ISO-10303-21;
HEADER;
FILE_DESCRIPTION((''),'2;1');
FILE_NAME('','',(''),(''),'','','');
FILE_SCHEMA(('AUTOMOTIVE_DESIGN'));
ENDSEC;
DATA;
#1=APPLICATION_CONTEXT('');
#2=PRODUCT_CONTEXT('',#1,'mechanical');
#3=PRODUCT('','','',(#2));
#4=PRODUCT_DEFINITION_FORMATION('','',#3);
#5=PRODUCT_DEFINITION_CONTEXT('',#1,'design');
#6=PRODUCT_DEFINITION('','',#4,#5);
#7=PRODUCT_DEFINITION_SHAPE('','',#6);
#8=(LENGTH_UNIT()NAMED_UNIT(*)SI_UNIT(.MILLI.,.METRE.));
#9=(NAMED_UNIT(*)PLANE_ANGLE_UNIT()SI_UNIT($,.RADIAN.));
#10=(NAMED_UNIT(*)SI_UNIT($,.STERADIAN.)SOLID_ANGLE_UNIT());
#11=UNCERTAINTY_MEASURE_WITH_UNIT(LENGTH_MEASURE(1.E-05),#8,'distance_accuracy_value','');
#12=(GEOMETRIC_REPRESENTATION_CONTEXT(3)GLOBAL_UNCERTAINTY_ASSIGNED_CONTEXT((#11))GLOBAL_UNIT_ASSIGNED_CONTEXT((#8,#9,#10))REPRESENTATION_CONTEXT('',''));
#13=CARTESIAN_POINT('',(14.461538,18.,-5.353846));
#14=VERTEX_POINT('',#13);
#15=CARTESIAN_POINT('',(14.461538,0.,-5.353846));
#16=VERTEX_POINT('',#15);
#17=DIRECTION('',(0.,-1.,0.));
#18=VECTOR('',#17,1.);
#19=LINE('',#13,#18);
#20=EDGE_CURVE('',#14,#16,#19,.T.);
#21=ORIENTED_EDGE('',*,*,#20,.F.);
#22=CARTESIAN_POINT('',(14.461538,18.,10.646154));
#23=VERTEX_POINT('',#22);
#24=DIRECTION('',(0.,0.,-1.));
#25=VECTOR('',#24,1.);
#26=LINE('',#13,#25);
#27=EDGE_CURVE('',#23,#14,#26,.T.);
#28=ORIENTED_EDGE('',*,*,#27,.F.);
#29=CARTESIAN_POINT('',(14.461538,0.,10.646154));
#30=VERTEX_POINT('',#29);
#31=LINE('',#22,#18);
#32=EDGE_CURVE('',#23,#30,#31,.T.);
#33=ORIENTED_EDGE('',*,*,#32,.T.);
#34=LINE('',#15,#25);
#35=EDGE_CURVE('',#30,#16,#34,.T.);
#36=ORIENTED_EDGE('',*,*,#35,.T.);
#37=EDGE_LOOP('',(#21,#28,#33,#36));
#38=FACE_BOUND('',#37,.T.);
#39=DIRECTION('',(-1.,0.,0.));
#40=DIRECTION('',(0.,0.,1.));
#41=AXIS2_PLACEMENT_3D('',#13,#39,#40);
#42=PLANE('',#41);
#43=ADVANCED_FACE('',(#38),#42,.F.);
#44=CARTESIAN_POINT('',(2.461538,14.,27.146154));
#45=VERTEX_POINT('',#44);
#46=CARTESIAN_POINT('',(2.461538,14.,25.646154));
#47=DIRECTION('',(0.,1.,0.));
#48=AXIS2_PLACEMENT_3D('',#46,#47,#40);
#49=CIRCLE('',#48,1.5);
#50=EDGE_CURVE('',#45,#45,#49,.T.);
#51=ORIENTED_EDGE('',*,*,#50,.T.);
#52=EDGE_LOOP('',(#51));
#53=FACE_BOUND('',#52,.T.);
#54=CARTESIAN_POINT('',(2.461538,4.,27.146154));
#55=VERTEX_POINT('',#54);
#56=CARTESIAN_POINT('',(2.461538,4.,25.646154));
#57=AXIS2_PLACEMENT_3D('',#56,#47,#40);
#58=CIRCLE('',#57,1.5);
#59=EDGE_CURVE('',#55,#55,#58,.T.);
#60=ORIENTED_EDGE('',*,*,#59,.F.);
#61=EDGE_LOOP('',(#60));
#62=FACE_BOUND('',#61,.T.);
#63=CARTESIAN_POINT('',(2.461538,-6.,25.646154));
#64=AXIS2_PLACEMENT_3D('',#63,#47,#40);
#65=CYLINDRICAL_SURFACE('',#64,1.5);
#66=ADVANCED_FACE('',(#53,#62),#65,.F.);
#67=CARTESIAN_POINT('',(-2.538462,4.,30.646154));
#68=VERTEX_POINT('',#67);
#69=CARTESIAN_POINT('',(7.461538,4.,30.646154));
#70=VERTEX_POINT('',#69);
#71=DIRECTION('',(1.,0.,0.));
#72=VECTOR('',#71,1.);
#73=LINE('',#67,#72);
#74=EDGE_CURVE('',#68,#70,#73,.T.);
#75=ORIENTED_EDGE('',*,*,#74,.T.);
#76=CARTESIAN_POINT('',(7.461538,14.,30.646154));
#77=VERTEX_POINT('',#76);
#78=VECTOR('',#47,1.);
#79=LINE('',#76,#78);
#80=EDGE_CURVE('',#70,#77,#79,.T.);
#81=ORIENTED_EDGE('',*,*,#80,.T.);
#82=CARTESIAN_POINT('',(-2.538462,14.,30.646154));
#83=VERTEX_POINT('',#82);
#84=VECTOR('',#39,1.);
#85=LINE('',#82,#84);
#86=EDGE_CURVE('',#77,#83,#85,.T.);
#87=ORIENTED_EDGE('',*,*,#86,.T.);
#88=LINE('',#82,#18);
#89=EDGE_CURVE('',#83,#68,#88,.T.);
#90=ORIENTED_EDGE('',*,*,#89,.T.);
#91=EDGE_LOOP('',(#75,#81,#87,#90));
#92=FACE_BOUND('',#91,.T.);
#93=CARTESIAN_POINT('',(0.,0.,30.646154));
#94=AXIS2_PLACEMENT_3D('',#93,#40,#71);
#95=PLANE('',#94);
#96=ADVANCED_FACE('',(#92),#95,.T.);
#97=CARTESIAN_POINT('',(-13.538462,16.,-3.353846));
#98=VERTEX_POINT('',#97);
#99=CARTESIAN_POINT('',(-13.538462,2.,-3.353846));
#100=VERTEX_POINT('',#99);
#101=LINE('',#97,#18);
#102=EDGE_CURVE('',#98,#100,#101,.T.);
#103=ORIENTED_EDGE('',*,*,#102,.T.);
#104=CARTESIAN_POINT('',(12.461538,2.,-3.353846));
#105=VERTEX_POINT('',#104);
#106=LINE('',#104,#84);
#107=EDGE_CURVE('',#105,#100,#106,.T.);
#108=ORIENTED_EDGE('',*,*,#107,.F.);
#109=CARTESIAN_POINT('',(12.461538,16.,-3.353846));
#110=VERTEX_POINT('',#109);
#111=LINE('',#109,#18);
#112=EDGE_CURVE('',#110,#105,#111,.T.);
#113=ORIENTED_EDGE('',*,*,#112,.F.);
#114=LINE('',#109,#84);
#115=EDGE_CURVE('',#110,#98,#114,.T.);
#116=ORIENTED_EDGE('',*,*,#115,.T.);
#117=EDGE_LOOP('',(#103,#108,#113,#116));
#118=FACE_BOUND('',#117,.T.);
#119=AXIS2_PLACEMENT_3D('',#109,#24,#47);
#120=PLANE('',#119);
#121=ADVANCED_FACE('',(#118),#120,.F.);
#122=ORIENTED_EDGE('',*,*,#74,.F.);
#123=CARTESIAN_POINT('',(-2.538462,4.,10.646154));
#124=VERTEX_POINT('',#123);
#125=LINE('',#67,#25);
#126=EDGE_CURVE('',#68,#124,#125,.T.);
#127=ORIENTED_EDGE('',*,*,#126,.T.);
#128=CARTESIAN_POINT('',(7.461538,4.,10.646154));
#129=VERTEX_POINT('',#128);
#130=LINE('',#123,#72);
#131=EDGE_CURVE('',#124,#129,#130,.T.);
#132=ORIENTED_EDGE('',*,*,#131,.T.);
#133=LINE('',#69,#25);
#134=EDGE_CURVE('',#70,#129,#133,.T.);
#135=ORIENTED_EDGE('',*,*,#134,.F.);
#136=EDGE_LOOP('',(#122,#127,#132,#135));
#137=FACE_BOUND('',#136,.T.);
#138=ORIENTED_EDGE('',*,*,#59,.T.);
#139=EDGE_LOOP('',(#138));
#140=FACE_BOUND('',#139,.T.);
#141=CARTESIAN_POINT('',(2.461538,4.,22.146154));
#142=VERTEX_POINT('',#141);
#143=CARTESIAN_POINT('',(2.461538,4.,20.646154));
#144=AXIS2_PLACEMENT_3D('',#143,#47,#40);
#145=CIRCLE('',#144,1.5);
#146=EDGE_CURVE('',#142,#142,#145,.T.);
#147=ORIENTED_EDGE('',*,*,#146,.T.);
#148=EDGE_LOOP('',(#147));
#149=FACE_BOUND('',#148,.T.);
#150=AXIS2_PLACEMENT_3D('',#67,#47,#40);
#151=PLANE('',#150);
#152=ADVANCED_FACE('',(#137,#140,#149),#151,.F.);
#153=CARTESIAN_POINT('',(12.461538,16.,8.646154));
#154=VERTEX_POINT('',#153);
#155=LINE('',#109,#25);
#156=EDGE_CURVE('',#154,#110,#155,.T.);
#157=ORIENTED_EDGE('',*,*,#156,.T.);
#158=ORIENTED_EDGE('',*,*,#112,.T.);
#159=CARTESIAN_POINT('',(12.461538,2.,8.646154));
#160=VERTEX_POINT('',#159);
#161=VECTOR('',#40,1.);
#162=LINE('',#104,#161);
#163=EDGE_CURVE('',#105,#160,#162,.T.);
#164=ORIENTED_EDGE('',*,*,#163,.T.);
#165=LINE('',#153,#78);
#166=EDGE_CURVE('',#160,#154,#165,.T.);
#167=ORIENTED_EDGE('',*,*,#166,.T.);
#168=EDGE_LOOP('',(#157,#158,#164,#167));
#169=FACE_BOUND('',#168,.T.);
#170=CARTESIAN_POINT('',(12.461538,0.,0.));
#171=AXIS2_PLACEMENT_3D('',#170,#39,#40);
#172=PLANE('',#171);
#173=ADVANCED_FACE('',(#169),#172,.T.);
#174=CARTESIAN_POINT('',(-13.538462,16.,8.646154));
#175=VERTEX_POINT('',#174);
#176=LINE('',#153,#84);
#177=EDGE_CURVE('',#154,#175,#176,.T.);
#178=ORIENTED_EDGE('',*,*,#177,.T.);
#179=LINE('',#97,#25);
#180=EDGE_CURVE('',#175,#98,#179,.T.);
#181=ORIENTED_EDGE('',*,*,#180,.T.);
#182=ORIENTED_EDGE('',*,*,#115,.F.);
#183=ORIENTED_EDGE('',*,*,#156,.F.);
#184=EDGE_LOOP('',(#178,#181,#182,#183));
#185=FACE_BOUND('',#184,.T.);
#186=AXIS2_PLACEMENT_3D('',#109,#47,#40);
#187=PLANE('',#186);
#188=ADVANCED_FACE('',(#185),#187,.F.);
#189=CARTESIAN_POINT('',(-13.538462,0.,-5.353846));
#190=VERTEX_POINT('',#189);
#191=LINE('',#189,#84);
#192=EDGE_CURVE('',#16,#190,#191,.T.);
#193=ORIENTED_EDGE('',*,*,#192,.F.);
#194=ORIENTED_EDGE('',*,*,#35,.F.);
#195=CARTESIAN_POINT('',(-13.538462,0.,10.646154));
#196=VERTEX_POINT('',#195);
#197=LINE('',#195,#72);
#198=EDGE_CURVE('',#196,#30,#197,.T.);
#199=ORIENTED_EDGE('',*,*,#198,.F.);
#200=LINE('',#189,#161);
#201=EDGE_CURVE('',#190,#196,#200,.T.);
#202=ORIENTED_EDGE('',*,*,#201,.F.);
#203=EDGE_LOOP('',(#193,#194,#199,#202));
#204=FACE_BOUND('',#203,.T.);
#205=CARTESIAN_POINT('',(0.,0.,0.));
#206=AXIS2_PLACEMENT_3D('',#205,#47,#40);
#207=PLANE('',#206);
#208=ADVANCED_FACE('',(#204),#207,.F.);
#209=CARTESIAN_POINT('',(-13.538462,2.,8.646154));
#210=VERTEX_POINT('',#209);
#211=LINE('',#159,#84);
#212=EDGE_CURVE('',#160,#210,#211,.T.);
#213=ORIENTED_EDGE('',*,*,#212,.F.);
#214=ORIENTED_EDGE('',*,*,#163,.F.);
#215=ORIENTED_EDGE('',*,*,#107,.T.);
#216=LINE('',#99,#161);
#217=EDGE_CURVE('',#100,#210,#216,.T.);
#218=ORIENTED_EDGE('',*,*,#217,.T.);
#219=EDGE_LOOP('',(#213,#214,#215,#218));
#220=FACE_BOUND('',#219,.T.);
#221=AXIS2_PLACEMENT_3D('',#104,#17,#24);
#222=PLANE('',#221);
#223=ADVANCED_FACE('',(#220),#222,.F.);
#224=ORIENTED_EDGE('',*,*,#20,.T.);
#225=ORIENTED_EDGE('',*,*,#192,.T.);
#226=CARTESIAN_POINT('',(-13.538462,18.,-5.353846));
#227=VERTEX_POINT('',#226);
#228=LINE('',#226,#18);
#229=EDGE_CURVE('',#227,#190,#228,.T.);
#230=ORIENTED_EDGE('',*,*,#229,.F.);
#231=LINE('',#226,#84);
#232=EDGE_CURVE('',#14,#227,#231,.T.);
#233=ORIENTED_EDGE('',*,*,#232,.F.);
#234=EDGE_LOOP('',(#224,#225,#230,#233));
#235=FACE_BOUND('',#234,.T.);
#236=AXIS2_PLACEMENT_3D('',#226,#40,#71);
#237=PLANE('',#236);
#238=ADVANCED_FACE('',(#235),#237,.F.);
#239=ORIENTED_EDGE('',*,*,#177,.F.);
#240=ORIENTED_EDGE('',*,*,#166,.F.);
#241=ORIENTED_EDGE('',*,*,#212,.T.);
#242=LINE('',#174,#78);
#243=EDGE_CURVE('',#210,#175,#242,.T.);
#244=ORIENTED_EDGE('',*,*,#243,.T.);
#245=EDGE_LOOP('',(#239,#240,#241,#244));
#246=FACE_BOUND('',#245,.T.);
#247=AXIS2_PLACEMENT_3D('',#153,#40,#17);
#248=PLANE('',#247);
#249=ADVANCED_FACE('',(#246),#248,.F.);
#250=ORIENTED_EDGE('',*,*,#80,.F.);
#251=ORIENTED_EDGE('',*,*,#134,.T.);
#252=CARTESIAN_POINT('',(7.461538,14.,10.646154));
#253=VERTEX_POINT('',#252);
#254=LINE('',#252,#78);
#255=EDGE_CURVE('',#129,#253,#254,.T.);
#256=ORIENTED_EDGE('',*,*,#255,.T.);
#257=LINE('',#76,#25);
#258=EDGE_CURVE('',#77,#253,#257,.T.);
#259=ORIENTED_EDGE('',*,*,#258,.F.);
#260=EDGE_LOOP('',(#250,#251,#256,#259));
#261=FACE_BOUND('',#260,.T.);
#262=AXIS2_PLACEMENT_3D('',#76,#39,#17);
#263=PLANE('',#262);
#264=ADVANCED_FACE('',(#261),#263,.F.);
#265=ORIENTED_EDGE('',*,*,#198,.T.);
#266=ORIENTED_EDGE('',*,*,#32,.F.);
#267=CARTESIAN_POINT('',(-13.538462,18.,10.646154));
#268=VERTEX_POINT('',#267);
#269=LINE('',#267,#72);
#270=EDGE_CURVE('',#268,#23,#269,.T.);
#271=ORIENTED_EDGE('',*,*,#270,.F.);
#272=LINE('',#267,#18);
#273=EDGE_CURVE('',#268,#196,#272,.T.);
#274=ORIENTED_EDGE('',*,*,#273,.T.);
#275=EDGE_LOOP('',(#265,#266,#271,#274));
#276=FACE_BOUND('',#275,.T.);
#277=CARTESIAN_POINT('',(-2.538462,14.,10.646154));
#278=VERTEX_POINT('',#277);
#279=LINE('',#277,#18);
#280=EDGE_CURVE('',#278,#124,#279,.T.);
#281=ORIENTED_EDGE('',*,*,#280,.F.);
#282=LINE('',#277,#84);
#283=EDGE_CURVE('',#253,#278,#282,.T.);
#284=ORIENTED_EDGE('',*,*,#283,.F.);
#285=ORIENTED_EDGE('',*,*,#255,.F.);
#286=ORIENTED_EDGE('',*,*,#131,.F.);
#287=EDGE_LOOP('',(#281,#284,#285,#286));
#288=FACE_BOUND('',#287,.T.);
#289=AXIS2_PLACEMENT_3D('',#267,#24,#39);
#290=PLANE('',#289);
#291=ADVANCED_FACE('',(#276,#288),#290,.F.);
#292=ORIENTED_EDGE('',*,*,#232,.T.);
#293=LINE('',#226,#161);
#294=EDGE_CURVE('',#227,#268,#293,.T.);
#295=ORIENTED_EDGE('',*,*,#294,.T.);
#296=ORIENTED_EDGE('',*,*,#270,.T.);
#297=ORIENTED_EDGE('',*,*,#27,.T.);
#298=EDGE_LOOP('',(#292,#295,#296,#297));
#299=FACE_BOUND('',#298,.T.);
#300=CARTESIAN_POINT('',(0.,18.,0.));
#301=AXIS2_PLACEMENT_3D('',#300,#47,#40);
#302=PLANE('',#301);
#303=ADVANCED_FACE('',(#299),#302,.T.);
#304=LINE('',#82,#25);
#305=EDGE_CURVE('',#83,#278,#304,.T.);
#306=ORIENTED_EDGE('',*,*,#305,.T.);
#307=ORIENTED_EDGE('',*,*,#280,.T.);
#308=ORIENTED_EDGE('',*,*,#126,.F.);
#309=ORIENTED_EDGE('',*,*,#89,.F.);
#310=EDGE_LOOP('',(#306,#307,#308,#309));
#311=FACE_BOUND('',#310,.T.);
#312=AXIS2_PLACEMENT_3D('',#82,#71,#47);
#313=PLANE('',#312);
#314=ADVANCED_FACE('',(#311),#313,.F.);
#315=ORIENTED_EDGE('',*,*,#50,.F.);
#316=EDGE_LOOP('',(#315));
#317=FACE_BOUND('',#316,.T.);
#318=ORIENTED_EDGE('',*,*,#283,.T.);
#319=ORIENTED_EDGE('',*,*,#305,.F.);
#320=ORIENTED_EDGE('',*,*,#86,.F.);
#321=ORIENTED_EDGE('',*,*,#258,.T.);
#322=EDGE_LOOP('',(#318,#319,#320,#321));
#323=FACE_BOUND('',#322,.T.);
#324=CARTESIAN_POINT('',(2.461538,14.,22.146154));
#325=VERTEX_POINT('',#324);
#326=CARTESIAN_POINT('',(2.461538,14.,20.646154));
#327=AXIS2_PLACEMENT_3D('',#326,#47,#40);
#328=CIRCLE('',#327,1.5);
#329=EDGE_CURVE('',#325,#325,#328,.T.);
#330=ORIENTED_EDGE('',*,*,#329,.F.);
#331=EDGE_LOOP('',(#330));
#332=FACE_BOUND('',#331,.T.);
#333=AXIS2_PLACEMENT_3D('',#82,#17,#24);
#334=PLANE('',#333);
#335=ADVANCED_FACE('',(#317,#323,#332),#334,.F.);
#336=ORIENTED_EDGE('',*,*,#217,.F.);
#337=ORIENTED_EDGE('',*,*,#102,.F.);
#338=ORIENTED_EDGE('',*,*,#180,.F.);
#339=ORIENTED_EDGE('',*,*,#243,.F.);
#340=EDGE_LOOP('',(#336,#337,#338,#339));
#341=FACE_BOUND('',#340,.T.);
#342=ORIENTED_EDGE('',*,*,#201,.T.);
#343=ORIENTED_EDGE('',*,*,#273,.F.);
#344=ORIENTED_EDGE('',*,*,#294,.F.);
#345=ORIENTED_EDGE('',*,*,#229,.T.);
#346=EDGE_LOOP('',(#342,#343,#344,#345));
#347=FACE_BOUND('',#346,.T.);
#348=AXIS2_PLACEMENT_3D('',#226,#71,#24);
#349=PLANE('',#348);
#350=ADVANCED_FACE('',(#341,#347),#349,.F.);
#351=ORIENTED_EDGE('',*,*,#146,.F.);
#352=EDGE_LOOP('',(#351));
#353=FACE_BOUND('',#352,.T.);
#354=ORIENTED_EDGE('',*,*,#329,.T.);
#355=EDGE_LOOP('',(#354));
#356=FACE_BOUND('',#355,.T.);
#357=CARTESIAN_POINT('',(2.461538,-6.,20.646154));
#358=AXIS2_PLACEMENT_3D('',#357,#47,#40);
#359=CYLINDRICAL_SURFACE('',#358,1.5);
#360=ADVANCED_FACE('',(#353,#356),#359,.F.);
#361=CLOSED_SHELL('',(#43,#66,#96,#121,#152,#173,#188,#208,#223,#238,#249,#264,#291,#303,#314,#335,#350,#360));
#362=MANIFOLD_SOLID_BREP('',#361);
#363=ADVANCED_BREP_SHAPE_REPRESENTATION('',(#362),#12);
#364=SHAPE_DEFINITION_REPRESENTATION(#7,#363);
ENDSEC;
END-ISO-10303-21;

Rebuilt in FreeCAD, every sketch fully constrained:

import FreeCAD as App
import Part
import Sketcher

V = App.Vector
Q = App.Units.Quantity

doc = App.newDocument("Part")
params = doc.addObject("Spreadsheet::Sheet", "Params")
for row, (alias, value) in enumerate([
    ("sketch1_width", "28 mm"),
    ("sketch1_height", "16 mm"),
    ("pad1_length", "18 mm"),
    ("sketch2_width", "10 mm"),
    ("pad2_length", "20 mm"),
    ("sketch3_diameter", "3 mm"),
    ("pocket1_length", "20 mm"),
    ("sketch4_width", "14 mm"),
    ("sketch4_height", "12 mm"),
    ("pocket2_length", "26 mm"),
], start=1):
    params.set(f"A{row}", alias)
    params.set(f"B{row}", "=" + value)
    params.setAlias(f"B{row}", alias)

body = doc.addObject("PartDesign::Body", "Body")

sketch1 = body.newObject("Sketcher::SketchObject", "Sketch")
sketch1.AttachmentSupport = (doc.getObject("XZ_Plane"), [""])
sketch1.MapMode = "FlatFace"
sketch1.addGeometry([
    Part.LineSegment(V(-14, -5, 0), V(-14, 11, 0)),
    Part.LineSegment(V(-14, 11, 0), V(14, 11, 0)),
    Part.LineSegment(V(14, 11, 0), V(14, -5, 0)),
    Part.LineSegment(V(14, -5, 0), V(-14, -5, 0)),
], False)
sketch1.addConstraint([
    Sketcher.Constraint("Coincident", 0, 2, 1, 1),
    Sketcher.Constraint("Coincident", 1, 2, 2, 1),
    Sketcher.Constraint("Coincident", 2, 2, 3, 1),
    Sketcher.Constraint("Coincident", 3, 2, 0, 1),
    Sketcher.Constraint("Vertical", 0),
    Sketcher.Constraint("Horizontal", 1),
    Sketcher.Constraint("Vertical", 2),
    Sketcher.Constraint("Horizontal", 3),
    Sketcher.Constraint("DistanceX", 1, 1, 1, 2, Q("28 mm")),
    Sketcher.Constraint("DistanceY", 0, 1, 0, 2, Q("16 mm")),
    Sketcher.Constraint("DistanceX", 0, 2, -1, 1, Q("13.538462 mm")),
    Sketcher.Constraint("DistanceY", -1, 1, 0, 2, Q("10.646154 mm")),
])
sketch1.setExpression("Constraints[8]", "Params.sketch1_width")
sketch1.setExpression("Constraints[9]", "Params.sketch1_height")
pad1 = body.newObject("PartDesign::Pad", "Pad")
pad1.Profile = sketch1
pad1.setExpression("Length", "Params.pad1_length")
pad1.Reversed = True

sketch2 = body.newObject("Sketcher::SketchObject", "Sketch001")
sketch2.AttachmentSupport = (doc.getObject("XY_Plane"), [""])
sketch2.MapMode = "FlatFace"
sketch2.AttachmentOffset = App.Placement(V(0, 0, 10.646154), App.Rotation())
sketch2.addGeometry([
    Part.LineSegment(V(-3, 14, 0), V(-3, 4, 0)),
    Part.LineSegment(V(-3, 4, 0), V(7, 4, 0)),
    Part.LineSegment(V(7, 4, 0), V(7, 14, 0)),
    Part.LineSegment(V(7, 14, 0), V(-3, 14, 0)),
], False)
sketch2.addConstraint([
    Sketcher.Constraint("Coincident", 0, 2, 1, 1),
    Sketcher.Constraint("Coincident", 1, 2, 2, 1),
    Sketcher.Constraint("Coincident", 2, 2, 3, 1),
    Sketcher.Constraint("Coincident", 3, 2, 0, 1),
    Sketcher.Constraint("Vertical", 0),
    Sketcher.Constraint("Horizontal", 1),
    Sketcher.Constraint("Vertical", 2),
    Sketcher.Constraint("Horizontal", 3),
    Sketcher.Constraint("Equal", 3, 0),
    Sketcher.Constraint("DistanceX", 1, 1, 1, 2, Q("10 mm")),
    Sketcher.Constraint("DistanceY", -1, 1, 0, 2, Q("4 mm")),
    Sketcher.Constraint("DistanceX", 0, 2, -1, 1, Q("2.538462 mm")),
])
sketch2.setExpression("Constraints[9]", "Params.sketch2_width")
pad2 = body.newObject("PartDesign::Pad", "Pad001")
pad2.Profile = sketch2
pad2.setExpression("Length", "Params.pad2_length")

sketch3 = body.newObject("Sketcher::SketchObject", "Sketch002")
sketch3.AttachmentSupport = (doc.getObject("XZ_Plane"), [""])
sketch3.MapMode = "FlatFace"
sketch3.AttachmentOffset = App.Placement(V(0, 0, -14), App.Rotation())
sketch3.addGeometry([
    Part.Circle(V(2.5, 20.6, 0), V(0, 0, 1), 1.5),
    Part.Circle(V(2.5, 25.6, 0), V(0, 0, 1), 1.5),
], False)
sketch3.addConstraint([
    Sketcher.Constraint("Equal", 0, 1),
    Sketcher.Constraint("Vertical", 0, 3, 1, 3),
    Sketcher.Constraint("Diameter", 0, Q("3 mm")),
    Sketcher.Constraint("DistanceY", 0, 3, 1, 3, Q("5 mm")),
    Sketcher.Constraint("DistanceX", -1, 1, 0, 3, Q("2.461538 mm")),
    Sketcher.Constraint("DistanceY", -1, 1, 0, 3, Q("20.646154 mm")),
])
sketch3.setExpression("Constraints[2]", "Params.sketch3_diameter")
pocket1 = body.newObject("PartDesign::Pocket", "Pocket")
pocket1.Profile = sketch3
pocket1.setExpression("Length", "Params.pocket1_length")
pocket1.Reversed = True

sketch4 = body.newObject("Sketcher::SketchObject", "Sketch003")
sketch4.AttachmentSupport = (doc.getObject("YZ_Plane"), [""])
sketch4.MapMode = "FlatFace"
sketch4.AttachmentOffset = App.Placement(V(0, 0, -13.538462), App.Rotation())
sketch4.addGeometry([
    Part.LineSegment(V(16, -3, 0), V(2, -3, 0)),
    Part.LineSegment(V(2, -3, 0), V(2, 9, 0)),
    Part.LineSegment(V(2, 9, 0), V(16, 9, 0)),
    Part.LineSegment(V(16, 9, 0), V(16, -3, 0)),
], False)
sketch4.addConstraint([
    Sketcher.Constraint("Coincident", 0, 2, 1, 1),
    Sketcher.Constraint("Coincident", 1, 2, 2, 1),
    Sketcher.Constraint("Coincident", 2, 2, 3, 1),
    Sketcher.Constraint("Coincident", 3, 2, 0, 1),
    Sketcher.Constraint("Horizontal", 0),
    Sketcher.Constraint("Vertical", 1),
    Sketcher.Constraint("Horizontal", 2),
    Sketcher.Constraint("Vertical", 3),
    Sketcher.Constraint("DistanceX", 0, 2, 0, 1, Q("14 mm")),
    Sketcher.Constraint("DistanceY", 1, 1, 1, 2, Q("12 mm")),
    Sketcher.Constraint("DistanceX", -1, 1, 0, 2, Q("2 mm")),
    Sketcher.Constraint("DistanceY", 0, 2, -1, 1, Q("3.353846 mm")),
])
sketch4.setExpression("Constraints[8]", "Params.sketch4_width")
sketch4.setExpression("Constraints[9]", "Params.sketch4_height")
pocket2 = body.newObject("PartDesign::Pocket", "Pocket001")
pocket2.Profile = sketch4
pocket2.setExpression("Length", "Params.pocket2_length")
pocket2.Reversed = True

doc.recompute()
